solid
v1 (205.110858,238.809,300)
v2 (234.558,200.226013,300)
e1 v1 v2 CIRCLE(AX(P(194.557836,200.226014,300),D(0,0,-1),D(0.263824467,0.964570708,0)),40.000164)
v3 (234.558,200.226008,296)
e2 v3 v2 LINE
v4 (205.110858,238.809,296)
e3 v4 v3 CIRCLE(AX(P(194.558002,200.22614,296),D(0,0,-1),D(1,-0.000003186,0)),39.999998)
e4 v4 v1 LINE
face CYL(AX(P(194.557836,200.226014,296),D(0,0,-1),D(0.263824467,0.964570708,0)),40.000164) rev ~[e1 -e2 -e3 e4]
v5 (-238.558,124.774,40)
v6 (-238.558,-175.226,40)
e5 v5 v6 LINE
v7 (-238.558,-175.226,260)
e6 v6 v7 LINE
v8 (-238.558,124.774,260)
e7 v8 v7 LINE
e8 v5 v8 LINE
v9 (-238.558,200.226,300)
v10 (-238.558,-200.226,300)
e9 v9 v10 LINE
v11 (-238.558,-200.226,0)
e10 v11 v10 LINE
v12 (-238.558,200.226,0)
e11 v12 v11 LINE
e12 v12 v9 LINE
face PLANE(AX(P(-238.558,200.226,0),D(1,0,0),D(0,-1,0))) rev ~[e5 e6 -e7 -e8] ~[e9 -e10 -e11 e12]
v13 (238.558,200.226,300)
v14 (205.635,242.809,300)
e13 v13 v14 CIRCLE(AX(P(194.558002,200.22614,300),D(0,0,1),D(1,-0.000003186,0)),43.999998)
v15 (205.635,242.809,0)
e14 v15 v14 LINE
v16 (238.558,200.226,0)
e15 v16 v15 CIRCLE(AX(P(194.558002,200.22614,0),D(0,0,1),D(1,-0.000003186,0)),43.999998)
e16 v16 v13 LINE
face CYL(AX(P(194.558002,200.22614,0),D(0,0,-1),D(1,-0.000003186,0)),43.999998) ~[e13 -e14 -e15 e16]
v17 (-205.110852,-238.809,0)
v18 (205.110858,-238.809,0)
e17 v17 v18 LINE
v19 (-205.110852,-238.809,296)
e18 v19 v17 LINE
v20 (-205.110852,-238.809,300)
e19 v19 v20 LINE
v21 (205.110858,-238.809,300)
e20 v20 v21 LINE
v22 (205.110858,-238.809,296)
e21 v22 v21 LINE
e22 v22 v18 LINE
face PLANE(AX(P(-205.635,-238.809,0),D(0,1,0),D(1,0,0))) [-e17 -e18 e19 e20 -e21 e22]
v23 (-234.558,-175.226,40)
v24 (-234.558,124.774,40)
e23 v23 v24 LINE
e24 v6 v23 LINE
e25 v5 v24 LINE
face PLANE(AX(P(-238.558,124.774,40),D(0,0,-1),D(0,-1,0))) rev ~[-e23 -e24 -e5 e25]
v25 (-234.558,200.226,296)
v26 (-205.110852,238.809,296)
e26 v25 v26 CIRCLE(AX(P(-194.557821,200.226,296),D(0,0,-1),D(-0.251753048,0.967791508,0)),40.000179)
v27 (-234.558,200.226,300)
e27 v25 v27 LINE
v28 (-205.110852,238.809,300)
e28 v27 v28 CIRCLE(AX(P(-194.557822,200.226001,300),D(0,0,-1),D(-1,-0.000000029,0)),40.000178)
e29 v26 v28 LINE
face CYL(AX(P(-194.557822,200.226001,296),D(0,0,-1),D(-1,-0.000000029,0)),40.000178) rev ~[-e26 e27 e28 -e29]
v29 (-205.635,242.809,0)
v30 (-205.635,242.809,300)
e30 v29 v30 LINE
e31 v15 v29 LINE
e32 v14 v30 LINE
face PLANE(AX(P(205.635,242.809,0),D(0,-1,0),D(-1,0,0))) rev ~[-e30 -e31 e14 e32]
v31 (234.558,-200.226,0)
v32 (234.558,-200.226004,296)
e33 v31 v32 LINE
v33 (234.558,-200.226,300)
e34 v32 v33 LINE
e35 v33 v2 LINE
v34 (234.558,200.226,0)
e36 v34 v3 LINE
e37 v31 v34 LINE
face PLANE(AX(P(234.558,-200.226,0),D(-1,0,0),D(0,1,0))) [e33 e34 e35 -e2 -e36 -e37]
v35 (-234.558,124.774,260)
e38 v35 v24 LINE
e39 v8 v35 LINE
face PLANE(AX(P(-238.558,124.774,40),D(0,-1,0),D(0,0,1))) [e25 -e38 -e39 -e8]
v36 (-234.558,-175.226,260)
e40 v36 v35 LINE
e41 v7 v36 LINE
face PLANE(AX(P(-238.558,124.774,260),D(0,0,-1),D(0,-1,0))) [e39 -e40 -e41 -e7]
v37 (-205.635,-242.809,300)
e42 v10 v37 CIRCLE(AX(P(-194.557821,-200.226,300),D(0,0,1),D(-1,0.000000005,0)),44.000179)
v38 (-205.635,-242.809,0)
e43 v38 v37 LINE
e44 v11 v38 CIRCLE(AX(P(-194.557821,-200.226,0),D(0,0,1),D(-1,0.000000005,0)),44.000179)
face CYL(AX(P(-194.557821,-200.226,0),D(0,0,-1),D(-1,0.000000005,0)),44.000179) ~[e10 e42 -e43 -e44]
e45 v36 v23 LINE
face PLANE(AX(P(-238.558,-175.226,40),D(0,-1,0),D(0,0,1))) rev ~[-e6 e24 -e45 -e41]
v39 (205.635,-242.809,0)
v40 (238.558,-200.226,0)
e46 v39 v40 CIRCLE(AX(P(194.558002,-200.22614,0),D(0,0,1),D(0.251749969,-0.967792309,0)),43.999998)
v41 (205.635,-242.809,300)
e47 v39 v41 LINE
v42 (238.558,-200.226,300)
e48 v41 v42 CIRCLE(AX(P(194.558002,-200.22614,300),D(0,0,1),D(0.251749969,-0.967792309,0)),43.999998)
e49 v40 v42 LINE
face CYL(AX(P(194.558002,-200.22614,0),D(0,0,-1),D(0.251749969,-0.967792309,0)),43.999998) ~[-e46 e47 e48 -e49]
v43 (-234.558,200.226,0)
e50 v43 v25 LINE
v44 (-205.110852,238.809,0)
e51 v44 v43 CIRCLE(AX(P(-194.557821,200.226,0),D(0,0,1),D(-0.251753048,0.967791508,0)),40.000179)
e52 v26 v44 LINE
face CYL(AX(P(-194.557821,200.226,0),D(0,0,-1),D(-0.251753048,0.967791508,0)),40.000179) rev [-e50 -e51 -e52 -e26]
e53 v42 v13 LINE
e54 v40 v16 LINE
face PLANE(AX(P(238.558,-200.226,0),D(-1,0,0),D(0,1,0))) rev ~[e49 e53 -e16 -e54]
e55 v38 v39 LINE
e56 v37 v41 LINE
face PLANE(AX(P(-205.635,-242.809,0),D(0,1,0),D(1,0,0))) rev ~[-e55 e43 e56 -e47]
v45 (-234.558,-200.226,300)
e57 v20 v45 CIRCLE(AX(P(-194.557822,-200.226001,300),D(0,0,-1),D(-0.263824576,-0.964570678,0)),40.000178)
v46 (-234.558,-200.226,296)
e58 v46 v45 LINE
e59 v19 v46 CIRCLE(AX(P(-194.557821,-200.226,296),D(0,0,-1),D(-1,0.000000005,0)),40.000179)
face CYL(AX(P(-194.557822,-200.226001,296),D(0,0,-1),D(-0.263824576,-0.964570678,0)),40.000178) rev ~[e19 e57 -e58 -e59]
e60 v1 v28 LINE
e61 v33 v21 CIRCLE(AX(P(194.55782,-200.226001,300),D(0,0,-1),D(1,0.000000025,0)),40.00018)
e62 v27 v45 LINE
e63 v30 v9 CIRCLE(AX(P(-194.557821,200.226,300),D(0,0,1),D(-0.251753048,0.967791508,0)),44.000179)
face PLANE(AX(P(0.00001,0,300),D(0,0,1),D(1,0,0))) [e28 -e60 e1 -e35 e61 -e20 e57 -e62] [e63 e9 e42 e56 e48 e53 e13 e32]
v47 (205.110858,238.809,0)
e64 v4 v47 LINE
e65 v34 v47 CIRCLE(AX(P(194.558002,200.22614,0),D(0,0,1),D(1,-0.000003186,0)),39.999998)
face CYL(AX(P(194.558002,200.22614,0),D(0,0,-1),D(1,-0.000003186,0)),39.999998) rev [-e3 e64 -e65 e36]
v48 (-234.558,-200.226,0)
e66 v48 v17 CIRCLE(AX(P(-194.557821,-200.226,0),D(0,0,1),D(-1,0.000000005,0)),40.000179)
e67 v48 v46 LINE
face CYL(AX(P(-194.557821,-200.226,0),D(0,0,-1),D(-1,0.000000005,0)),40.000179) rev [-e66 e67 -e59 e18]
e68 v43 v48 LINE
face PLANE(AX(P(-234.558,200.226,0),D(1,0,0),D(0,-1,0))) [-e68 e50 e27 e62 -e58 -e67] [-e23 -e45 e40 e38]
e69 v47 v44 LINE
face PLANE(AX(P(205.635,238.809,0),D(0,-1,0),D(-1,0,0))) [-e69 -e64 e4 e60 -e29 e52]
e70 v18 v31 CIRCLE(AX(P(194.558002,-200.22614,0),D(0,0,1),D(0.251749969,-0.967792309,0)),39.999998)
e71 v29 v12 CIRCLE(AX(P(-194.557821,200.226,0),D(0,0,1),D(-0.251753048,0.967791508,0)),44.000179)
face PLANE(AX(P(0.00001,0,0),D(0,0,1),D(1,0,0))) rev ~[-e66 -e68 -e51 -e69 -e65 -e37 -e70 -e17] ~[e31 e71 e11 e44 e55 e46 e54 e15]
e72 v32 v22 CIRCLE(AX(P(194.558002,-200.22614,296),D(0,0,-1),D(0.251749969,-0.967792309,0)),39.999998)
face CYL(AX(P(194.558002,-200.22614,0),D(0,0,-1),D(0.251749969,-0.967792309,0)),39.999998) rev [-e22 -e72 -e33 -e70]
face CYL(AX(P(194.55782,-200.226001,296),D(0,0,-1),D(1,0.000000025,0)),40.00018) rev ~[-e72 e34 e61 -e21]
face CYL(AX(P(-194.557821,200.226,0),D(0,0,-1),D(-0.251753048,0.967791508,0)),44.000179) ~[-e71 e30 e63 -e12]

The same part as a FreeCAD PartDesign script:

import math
import FreeCAD as App
import Part
import Sketcher
from FreeCAD import Vector


def faces_at(feature, points):
    """Names of the faces that lie closest to the given points."""
    faces = feature.Shape.Faces
    near = lambda p: min(range(len(faces)), key=lambda i: faces[i].distToShape(Part.Vertex(*p))[0])
    return sorted({f"Face{near(p) + 1}" for p in points})


def add_polygon(sketch, points):
    """Adds a closed chain of lines whose ends are joined by coincident constraints."""
    first, n = sketch.GeometryCount, len(points)
    for a, b in zip(points, points[1:] + points[:1]):
        sketch.addGeometry(Part.LineSegment(App.Vector(*a, 0), App.Vector(*b, 0)), False)
    for i in range(n):
        sketch.addConstraint(Sketcher.Constraint("Coincident", first + i, 2, first + (i + 1) % n, 1))

doc = App.newDocument("Part")
body = doc.addObject("PartDesign::Body", "Body")

sketch1 = body.newObject("Sketcher::SketchObject", "Sketch")
sketch1.AttachmentSupport = (doc.getObject("XY_Plane"), [""])
sketch1.MapMode = "FlatFace"
sketch1.addGeometry([
    Part.LineSegment(Vector(206, 243, 0), Vector(-206, 243, 0)),
    Part.ArcOfCircle(Part.Circle(Vector(-195, 200, 0), Vector(0, 0, 1), 44), math.radians(105), math.radians(180)),
    Part.LineSegment(Vector(-239, 200, 0), Vector(-239, -200, 0)),
    Part.ArcOfCircle(Part.Circle(Vector(-195, -200, 0), Vector(0, 0, 1), 44), math.radians(180), math.radians(255)),
    Part.LineSegment(Vector(-206, -243, 0), Vector(206, -243, 0)),
    Part.ArcOfCircle(Part.Circle(Vector(195, -200, 0), Vector(0, 0, 1), 44), math.radians(-75), math.radians(0)),
    Part.LineSegment(Vector(239, -200, 0), Vector(239, 200, 0)),
    Part.ArcOfCircle(Part.Circle(Vector(195, 200, 0), Vector(0, 0, 1), 44), math.radians(0), math.radians(75)),
], False)
sketch1.addConstraint([
    Sketcher.Constraint("Coincident", 0, 2, 1, 1),
    Sketcher.Constraint("Tangent", 1, 2, 2, 1),
    Sketcher.Constraint("Tangent", 2, 2, 3, 1),
    Sketcher.Constraint("Coincident", 3, 2, 4, 1),
    Sketcher.Constraint("Coincident", 4, 2, 5, 1),
    Sketcher.Constraint("Coincident", 5, 2, 6, 1),
    Sketcher.Constraint("Coincident", 6, 2, 7, 1),
    Sketcher.Constraint("Coincident", 7, 2, 0, 1),
    Sketcher.Constraint("Horizontal", 0),
    Sketcher.Constraint("Vertical", 2),
    Sketcher.Constraint("Horizontal", 4),
    Sketcher.Constraint("Vertical", 6),
    Sketcher.Constraint("Equal", 1, 3),
    Sketcher.Constraint("Equal", 5, 7),
    Sketcher.Constraint("Symmetric", 0, 2, 4, 2, -1, 1),
    Sketcher.Constraint("Symmetric", 1, 2, 5, 2, -1, 1),
    Sketcher.Constraint("Horizontal", 2, 2, 5, 2),
    Sketcher.Constraint("Horizontal", 1, 2, 6, 2),
    Sketcher.Constraint("Vertical", 4, 2, 7, 2),
    Sketcher.Constraint("Radius", 5, 43.999998),
    Sketcher.Constraint("DistanceX", 0, 2, 0, 1, 411.27),
    Sketcher.Constraint("DistanceY", 2, 2, 2, 1, 400.452),
    Sketcher.Constraint("Radius", 1, 44.000179),
    Sketcher.Constraint("DistanceX", -1, 1, 5, 3, 194.558002),
])
pad1 = body.newObject("PartDesign::Pad", "Pad")
pad1.Profile = sketch1
pad1.Length = 300
doc.recompute()

thickness = body.newObject("PartDesign::Thickness", "Thickness")
thickness.Base = (pad1, faces_at(pad1, [(0, 0, 0)]))
thickness.Value = 4
thickness.Reversed = True
thickness.Join = "Arc"

sketch2 = body.newObject("Sketcher::SketchObject", "Sketch001")
sketch2.AttachmentSupport = (doc.getObject("XY_Plane"), [""])
sketch2.MapMode = "FlatFace"
sketch2.AttachmentOffset = App.Placement(Vector(0, 0, 296), App.Rotation())
sketch2.addGeometry([
    Part.ArcOfCircle(Part.Circle(Vector(-195, -200, 0), Vector(0, 0, 1), 40), math.radians(180), math.radians(255)),
    Part.LineSegment(Vector(-235, -200, 0), Vector(-235, 200, 0)),
    Part.ArcOfCircle(Part.Circle(Vector(-195, 200, 0), Vector(0, 0, 1), 40), math.radians(105), math.radians(180)),
    Part.LineSegment(Vector(-205, 239, 0), Vector(205, 239, 0)),
    Part.ArcOfCircle(Part.Circle(Vector(195, 200, 0), Vector(0, 0, 1), 40), math.radians(0), math.radians(75)),
    Part.LineSegment(Vector(235, 200, 0), Vector(235, -200, 0)),
    Part.ArcOfCircle(Part.Circle(Vector(195, -200, 0), Vector(0, 0, 1), 40), math.radians(-75), math.radians(0)),
    Part.LineSegment(Vector(205, -239, 0), Vector(-205, -239, 0)),
], False)
sketch2.addConstraint([
    Sketcher.Constraint("Tangent", 0, 1, 1, 1),
    Sketcher.Constraint("Tangent", 1, 2, 2, 2),
    Sketcher.Constraint("Coincident", 2, 1, 3, 1),
    Sketcher.Constraint("Coincident", 3, 2, 4, 2),
    Sketcher.Constraint("Tangent", 4, 1, 5, 1),
    Sketcher.Constraint("Tangent", 5, 2, 6, 2),
    Sketcher.Constraint("Coincident", 6, 1, 7, 1),
    Sketcher.Constraint("Coincident", 7, 2, 0, 2),
    Sketcher.Constraint("Vertical", 1),
    Sketcher.Constraint("Horizontal", 3),
    Sketcher.Constraint("Vertical", 5),
    Sketcher.Constraint("Horizontal", 7),
    Sketcher.Constraint("Equal", 0, 2),
    Sketcher.Constraint("Symmetric", 2, 3, 6, 3, -1, 1),
    Sketcher.Constraint("Symmetric", 2, 1, 6, 1, -1, 1),
    Sketcher.Constraint("Horizontal", 0, 3, 6, 3),
    Sketcher.Constraint("Vertical", 3, 2, 6, 1),
    Sketcher.Constraint("DistanceY", 1, 1, 1, 2, 400.452),
    Sketcher.Constraint("Radius", 0, 40.000178),
    Sketcher.Constraint("DistanceX", 0, 1, -1, 1, 234.558),
    Sketcher.Constraint("DistanceY", -1, 1, 2, 1, 238.809),
    Sketcher.Constraint("Radius", 4, 40.000164),
])
pocket1 = body.newObject("PartDesign::Pocket", "Pocket")
pocket1.Profile = sketch2
pocket1.Length = 25
pocket1.Reversed = True

sketch3 = body.newObject("Sketcher::SketchObject", "Sketch002")
sketch3.AttachmentSupport = (doc.getObject("YZ_Plane"), [""])
sketch3.MapMode = "FlatFace"
sketch3.AttachmentOffset = App.Placement(Vector(0, 0, -238.558), App.Rotation())
add_polygon(sketch3, [(125, 260), (125, 40), (-175, 40), (-175, 260)])
sketch3.addConstraint([
    Sketcher.Constraint("Vertical", 0),
    Sketcher.Constraint("Horizontal", 1),
    Sketcher.Constraint("Vertical", 2),
    Sketcher.Constraint("Horizontal", 3),
    Sketcher.Constraint("DistanceX", 1, 2, 1, 1, 300.0),
    Sketcher.Constraint("DistanceY", 0, 2, 0, 1, 220.0),
    Sketcher.Constraint("DistanceY", -1, 1, 0, 2, 40.0),
    Sketcher.Constraint("DistanceX", -1, 1, 0, 2, 124.774),
])
pocket2 = body.newObject("PartDesign::Pocket", "Pocket001")
pocket2.Profile = sketch3
pocket2.Length = 25
pocket2.Reversed = True

doc.recompute()
